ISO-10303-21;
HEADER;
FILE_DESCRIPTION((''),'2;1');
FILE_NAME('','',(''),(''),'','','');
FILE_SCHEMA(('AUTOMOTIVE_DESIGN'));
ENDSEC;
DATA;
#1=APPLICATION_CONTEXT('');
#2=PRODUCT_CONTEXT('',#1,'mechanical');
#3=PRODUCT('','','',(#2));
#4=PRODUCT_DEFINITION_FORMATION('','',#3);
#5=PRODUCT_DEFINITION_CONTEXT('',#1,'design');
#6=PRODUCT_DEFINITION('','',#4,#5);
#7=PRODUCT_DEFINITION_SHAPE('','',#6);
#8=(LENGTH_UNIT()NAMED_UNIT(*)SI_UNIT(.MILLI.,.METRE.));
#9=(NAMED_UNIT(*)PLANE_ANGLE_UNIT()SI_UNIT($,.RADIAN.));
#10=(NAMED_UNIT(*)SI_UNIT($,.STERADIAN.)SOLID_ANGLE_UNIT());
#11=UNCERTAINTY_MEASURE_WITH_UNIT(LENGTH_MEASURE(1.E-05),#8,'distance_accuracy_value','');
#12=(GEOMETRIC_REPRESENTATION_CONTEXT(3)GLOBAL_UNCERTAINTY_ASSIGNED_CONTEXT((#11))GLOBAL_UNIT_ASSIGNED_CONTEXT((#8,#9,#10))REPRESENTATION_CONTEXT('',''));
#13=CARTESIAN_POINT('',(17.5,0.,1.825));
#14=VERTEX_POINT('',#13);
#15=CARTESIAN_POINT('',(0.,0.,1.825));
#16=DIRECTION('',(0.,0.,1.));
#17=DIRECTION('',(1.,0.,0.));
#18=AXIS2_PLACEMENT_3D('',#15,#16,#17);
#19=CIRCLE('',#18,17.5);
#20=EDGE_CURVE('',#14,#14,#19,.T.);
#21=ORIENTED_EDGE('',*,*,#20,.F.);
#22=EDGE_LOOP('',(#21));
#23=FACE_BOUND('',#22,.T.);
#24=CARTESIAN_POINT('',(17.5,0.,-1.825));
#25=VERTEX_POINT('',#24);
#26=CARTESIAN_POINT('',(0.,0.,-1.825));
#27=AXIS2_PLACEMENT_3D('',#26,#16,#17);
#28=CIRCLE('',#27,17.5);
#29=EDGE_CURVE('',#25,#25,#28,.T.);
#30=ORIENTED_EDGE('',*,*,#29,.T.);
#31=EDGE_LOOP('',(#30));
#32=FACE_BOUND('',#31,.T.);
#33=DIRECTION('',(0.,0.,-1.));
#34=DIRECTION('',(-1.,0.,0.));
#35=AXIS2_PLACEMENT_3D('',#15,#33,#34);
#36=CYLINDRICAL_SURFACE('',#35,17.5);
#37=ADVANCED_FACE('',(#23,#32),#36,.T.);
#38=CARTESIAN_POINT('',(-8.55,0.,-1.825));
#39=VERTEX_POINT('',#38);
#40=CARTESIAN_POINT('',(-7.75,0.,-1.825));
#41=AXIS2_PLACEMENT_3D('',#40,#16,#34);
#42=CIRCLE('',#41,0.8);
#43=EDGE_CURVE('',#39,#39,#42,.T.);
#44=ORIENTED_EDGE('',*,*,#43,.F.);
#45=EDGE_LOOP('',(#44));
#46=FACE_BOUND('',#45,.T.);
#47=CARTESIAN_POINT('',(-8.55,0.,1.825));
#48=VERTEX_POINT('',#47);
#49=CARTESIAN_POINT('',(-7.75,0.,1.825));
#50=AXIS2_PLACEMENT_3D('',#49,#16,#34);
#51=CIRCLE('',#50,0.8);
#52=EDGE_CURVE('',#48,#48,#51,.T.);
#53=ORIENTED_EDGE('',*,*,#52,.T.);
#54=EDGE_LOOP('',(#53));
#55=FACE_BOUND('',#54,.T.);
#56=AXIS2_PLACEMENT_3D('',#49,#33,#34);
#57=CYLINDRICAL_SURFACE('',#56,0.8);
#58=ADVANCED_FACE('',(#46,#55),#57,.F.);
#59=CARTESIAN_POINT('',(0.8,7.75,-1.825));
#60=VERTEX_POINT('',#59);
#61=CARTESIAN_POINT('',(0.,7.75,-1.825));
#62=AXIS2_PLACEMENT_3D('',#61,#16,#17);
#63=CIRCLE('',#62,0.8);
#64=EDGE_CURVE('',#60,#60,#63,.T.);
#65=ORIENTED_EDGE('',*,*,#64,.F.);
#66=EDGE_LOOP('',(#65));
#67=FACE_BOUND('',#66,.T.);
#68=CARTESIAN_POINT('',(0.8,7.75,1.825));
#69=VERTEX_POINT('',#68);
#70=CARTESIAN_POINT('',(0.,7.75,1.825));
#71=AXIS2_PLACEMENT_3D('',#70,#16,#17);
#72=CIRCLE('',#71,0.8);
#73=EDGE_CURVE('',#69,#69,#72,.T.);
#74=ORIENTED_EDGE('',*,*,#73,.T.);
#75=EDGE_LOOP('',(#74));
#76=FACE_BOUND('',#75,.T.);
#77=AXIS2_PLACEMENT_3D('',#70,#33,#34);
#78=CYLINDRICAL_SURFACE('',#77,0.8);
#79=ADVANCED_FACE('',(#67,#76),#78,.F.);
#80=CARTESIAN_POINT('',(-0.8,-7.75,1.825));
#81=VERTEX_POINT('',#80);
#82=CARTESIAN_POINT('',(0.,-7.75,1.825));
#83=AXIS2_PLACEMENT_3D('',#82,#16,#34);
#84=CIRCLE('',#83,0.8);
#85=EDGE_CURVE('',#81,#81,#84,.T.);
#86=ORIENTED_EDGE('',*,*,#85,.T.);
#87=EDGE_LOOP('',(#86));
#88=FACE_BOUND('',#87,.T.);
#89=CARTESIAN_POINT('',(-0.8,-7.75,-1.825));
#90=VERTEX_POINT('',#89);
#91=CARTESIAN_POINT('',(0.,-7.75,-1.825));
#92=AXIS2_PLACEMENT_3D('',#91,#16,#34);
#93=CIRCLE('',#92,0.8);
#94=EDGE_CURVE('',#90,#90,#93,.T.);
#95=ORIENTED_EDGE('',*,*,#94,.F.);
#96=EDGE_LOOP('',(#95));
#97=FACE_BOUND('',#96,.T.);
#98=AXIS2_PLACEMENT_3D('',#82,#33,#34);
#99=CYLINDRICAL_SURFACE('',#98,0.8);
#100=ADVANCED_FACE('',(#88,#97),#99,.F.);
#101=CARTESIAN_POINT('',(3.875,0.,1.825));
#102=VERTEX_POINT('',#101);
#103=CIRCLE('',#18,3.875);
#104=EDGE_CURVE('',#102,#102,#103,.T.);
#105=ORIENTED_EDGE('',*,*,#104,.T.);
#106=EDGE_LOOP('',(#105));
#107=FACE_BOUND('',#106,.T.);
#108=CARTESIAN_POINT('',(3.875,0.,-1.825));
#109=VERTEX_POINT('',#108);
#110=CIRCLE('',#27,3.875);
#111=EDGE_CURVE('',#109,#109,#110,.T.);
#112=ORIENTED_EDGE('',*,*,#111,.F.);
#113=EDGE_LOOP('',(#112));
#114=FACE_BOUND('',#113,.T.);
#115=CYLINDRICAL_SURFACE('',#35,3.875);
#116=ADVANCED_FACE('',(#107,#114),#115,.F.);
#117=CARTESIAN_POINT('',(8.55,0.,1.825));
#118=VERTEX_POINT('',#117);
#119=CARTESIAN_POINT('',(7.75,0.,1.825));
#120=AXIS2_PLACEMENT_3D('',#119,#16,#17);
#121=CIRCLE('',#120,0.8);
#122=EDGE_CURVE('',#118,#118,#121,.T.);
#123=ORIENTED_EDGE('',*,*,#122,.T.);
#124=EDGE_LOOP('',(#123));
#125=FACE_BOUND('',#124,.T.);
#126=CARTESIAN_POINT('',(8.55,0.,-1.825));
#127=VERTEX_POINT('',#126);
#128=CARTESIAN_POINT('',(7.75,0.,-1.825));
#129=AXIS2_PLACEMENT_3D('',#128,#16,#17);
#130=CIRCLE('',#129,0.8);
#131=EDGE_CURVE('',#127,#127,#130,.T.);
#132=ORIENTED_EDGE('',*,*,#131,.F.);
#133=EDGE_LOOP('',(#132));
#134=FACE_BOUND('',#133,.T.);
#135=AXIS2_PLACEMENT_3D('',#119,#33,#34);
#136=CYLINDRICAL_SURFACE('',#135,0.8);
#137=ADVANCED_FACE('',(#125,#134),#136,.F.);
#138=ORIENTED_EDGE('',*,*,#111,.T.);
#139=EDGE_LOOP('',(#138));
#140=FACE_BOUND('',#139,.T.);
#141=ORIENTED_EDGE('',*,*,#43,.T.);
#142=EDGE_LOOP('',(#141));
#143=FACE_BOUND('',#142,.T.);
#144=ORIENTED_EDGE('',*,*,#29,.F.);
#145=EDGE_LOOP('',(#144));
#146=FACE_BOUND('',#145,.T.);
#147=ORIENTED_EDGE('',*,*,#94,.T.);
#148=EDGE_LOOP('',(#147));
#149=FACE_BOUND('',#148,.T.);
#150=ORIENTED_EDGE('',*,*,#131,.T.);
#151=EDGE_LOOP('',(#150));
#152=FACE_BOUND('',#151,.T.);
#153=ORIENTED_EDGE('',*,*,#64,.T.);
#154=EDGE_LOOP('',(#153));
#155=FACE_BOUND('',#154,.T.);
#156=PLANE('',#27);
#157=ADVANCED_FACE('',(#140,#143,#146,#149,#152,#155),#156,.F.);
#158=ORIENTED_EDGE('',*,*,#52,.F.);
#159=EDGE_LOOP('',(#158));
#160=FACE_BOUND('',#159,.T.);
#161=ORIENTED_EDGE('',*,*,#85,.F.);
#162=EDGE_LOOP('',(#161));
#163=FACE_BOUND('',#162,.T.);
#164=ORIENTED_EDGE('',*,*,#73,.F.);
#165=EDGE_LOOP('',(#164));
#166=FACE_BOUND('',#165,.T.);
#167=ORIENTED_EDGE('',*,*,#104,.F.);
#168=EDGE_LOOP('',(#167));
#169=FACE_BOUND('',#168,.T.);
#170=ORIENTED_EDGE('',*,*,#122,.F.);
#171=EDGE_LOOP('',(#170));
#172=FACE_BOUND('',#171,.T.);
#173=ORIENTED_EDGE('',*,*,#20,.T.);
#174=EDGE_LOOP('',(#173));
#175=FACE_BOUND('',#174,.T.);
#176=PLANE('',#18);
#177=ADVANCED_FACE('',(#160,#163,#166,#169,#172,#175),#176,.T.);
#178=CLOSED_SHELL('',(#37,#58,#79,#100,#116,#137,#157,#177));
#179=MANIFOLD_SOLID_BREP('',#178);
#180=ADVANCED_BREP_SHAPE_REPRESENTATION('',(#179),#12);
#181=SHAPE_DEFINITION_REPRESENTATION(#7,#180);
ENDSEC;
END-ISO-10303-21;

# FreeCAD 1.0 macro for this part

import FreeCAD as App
import Part
import Sketcher
Q = App.Units.Quantity

doc = App.newDocument("Part")
body = doc.addObject("PartDesign::Body", "Body")

# Sketch on XY plane
sketch1 = body.newObject("Sketcher::SketchObject", "Sketch")
sketch1.AttachmentSupport = (doc.getObject("XY_Plane"), [""])
sketch1.MapMode = "FlatFace"
sketch1.addGeometry([
    Part.Circle(App.Vector(0, 0, 0), App.Vector(0, 0, 1), 17.5),  # 0
    Part.Circle(App.Vector(-7.8, 0, 0), App.Vector(0, 0, 1), 0.8),  # 1
    Part.Circle(App.Vector(0, -7.8, 0), App.Vector(0, 0, 1), 0.8),  # 2
    Part.Circle(App.Vector(0, 0, 0), App.Vector(0, 0, 1), 3.9),  # 3
    Part.Circle(App.Vector(7.8, 0, 0), App.Vector(0, 0, 1), 0.8),  # 4
    Part.Circle(App.Vector(0, 7.8, 0), App.Vector(0, 0, 1), 0.8),  # 5
], False)
sketch1.addConstraint([
    Sketcher.Constraint("Coincident", 0, 3, -1, 1),
    Sketcher.Constraint("Coincident", 3, 3, -1, 1),
    Sketcher.Constraint("Equal", 1, 2),
    Sketcher.Constraint("Equal", 2, 4),
    Sketcher.Constraint("Equal", 4, 5),
    Sketcher.Constraint("Symmetric", 1, 3, 4, 3, -1, 1),
    Sketcher.Constraint("Symmetric", 2, 3, 5, 3, -1, 1),
    Sketcher.Constraint("PointOnObject", 1, 3, -1),
    Sketcher.Constraint("PointOnObject", 2, 3, -2),
    Sketcher.Constraint("Diameter", 0, Q("35 mm")),
    Sketcher.Constraint("Diameter", 1, Q("1.6 mm")),
    Sketcher.Constraint("Diameter", 3, Q("7.75 mm")),
    Sketcher.Constraint("DistanceX", 1, 3, 4, 3, Q("15.5 mm")),
    Sketcher.Constraint("DistanceY", 2, 3, 5, 3, Q("15.5 mm")),
])
pad1 = body.newObject("PartDesign::Pad", "Pad")
pad1.Profile = sketch1
pad1.Length = 3.65
pad1.Midplane = True

doc.recompute()
